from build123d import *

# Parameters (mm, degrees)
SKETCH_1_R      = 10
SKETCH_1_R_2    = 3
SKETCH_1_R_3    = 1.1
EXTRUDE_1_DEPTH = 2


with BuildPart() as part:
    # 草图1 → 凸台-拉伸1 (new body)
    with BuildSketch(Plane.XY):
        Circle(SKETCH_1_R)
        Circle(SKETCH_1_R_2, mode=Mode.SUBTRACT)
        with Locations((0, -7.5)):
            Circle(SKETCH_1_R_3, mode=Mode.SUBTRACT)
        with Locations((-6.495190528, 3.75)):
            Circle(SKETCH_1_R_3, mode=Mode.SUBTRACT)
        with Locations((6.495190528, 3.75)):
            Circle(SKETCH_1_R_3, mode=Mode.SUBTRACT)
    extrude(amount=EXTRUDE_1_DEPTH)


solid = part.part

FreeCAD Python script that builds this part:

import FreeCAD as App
import Part
import Sketcher
from FreeCAD import Vector
Q = App.Units.Quantity

doc = App.newDocument("Part")
body = doc.addObject("PartDesign::Body", "Body")

# Sketch on XY plane
sketch1 = body.newObject("Sketcher::SketchObject", "Sketch")
sketch1.AttachmentSupport = (doc.getObject("XY_Plane"), [""])
sketch1.MapMode = "FlatFace"
sketch1.addGeometry([
    Part.Circle(Vector(0, 0, 0), Vector(0, 0, 1), 10),  # 0
    Part.Circle(Vector(0, -7.5, 0), Vector(0, 0, 1), 1.1),  # 1
    Part.Circle(Vector(-6.5, 3.8, 0), Vector(0, 0, 1), 1.1),  # 2
    Part.Circle(Vector(0, 0, 0), Vector(0, 0, 1), 3),  # 3
    Part.Circle(Vector(6.5, 3.8, 0), Vector(0, 0, 1), 1.1),  # 4
], False)
sketch1.addConstraint([
    Sketcher.Constraint("Coincident", 0, 3, -1, 1),
    Sketcher.Constraint("Coincident", 3, 3, -1, 1),
    Sketcher.Constraint("Equal", 1, 2),
    Sketcher.Constraint("Equal", 2, 4),
    Sketcher.Constraint("Symmetric", 2, 3, 4, 3, -2),
    Sketcher.Constraint("PointOnObject", 1, 3, -2),
    Sketcher.Constraint("Diameter", 0, Q("20 mm")),
    Sketcher.Constraint("Diameter", 3, Q("6 mm")),
    Sketcher.Constraint("Diameter", 1, Q("2.2 mm")),
    Sketcher.Constraint("DistanceY", 1, 3, -1, 1, Q("7.5 mm")),
    Sketcher.Constraint("DistanceY", -1, 1, 2, 3, Q("3.75 mm")),
    Sketcher.Constraint("DistanceX", 2, 3, -1, 1, Q("6.495191 mm")),
])
pad1 = body.newObject("PartDesign::Pad", "Pad")
pad1.Profile = sketch1
pad1.Length = 2

doc.recompute()
